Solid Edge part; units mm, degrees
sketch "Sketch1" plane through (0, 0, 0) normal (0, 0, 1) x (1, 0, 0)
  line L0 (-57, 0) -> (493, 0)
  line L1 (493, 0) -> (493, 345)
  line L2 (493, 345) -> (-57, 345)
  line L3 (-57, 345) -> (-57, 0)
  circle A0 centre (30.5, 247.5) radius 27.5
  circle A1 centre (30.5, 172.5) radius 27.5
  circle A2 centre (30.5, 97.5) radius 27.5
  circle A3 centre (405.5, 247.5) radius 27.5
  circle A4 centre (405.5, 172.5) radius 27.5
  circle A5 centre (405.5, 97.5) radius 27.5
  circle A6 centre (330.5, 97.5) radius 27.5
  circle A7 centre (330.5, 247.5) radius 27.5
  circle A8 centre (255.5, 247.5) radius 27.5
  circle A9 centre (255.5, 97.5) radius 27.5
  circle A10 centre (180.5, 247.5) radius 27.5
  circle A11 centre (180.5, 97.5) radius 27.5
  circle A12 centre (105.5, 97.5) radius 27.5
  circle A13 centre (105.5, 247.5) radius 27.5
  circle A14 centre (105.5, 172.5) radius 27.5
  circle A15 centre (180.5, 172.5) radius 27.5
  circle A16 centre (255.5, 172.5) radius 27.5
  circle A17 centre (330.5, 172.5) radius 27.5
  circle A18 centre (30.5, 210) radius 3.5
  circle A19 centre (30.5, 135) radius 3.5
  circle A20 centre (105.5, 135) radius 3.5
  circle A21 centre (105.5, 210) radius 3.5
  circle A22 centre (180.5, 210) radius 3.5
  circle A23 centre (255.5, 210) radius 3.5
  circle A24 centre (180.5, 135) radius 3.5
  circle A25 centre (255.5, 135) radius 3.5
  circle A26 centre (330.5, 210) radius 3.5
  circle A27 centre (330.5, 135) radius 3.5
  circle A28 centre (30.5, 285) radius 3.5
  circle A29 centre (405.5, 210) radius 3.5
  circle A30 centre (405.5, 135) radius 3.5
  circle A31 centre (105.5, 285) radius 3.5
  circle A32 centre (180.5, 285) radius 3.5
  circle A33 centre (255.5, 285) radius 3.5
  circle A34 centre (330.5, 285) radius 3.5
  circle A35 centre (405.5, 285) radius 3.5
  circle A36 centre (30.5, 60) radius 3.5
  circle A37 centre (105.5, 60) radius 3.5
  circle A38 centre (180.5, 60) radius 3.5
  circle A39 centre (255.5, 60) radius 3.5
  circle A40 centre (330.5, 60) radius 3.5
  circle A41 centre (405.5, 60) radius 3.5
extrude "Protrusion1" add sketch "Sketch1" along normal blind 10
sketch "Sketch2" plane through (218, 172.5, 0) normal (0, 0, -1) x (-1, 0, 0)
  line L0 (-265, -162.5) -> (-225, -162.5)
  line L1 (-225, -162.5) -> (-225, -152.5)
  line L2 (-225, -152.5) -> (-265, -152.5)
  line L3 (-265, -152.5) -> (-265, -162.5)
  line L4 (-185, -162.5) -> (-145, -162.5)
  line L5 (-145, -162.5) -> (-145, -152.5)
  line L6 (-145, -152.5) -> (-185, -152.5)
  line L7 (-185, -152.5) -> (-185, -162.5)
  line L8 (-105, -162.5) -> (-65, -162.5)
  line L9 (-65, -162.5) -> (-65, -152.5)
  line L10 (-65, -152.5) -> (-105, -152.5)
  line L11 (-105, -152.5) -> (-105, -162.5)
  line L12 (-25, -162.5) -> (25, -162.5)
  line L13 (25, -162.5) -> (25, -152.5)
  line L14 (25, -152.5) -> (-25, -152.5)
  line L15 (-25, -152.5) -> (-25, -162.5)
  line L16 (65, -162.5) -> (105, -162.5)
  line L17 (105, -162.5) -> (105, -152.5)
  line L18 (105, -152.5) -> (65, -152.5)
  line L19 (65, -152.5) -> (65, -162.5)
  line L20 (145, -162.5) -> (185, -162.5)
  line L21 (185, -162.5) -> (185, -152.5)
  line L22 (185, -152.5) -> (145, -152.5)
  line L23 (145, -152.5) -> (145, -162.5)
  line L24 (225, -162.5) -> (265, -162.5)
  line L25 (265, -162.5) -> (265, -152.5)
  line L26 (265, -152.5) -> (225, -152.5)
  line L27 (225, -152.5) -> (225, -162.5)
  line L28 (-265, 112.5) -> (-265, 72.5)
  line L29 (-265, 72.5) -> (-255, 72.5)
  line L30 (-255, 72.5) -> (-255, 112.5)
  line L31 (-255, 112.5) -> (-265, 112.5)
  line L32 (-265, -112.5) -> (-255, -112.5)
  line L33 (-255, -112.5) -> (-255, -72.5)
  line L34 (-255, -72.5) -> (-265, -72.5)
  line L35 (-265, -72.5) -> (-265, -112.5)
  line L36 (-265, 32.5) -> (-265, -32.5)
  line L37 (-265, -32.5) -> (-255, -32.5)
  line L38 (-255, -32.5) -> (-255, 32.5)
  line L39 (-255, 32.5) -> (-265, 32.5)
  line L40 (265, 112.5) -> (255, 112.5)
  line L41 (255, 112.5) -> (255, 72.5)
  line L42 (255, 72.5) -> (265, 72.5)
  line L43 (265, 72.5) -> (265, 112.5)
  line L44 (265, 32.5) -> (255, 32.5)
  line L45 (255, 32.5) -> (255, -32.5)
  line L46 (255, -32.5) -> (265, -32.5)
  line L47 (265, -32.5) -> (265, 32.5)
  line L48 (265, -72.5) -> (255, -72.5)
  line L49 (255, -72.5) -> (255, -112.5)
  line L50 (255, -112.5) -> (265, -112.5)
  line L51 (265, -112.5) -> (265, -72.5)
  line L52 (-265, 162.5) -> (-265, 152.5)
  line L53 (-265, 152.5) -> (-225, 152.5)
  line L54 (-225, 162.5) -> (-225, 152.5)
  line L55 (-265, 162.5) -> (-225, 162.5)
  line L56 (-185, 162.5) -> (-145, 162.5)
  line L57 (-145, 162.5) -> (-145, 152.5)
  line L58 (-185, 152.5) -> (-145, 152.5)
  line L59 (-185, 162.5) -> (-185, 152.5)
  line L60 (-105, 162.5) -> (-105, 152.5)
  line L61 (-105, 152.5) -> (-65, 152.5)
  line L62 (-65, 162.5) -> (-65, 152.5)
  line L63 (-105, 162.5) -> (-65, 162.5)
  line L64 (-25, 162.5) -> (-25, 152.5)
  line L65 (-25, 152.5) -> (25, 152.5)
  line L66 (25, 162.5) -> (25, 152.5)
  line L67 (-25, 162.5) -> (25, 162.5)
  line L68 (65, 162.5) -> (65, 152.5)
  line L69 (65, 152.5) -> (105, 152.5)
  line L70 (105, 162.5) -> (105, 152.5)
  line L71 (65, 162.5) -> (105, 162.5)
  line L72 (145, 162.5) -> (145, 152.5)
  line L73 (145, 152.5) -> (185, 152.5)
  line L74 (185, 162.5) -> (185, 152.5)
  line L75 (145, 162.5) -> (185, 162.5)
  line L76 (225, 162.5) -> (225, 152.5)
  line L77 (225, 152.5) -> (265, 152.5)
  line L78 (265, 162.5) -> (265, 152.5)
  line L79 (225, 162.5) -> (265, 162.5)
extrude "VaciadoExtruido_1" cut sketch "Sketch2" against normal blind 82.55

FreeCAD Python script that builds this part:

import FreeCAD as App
import Part
import Sketcher
from FreeCAD import Vector
Q = App.Units.Quantity

doc = App.newDocument("Part")
body = doc.addObject("PartDesign::Body", "Body")

sketch1 = body.newObject("Sketcher::SketchObject", "Sketch")
sketch1.AttachmentSupport = (doc.getObject("XY_Plane"), [""])
sketch1.MapMode = "FlatFace"
sketch1.addGeometry([
    Part.LineSegment(Vector(-57, 345, 0), Vector(-57, 0, 0)),
    Part.LineSegment(Vector(-57, 0, 0), Vector(493, 0, 0)),
    Part.LineSegment(Vector(493, 0, 0), Vector(493, 345, 0)),
    Part.LineSegment(Vector(493, 345, 0), Vector(-57, 345, 0)),
    Part.Circle(Vector(30.5, 60, 0), Vector(0, 0, 1), 3.5),
    Part.Circle(Vector(105.5, 60, 0), Vector(0, 0, 1), 3.5),
    Part.Circle(Vector(180.5, 60, 0), Vector(0, 0, 1), 3.5),
    Part.Circle(Vector(30.5, 97.5, 0), Vector(0, 0, 1), 27.5),
    Part.Circle(Vector(30.5, 135, 0), Vector(0, 0, 1), 3.5),
    Part.Circle(Vector(105.5, 97.5, 0), Vector(0, 0, 1), 27.5),
    Part.Circle(Vector(180.5, 97.5, 0), Vector(0, 0, 1), 27.5),
    Part.Circle(Vector(105.5, 135, 0), Vector(0, 0, 1), 3.5),
    Part.Circle(Vector(180.5, 135, 0), Vector(0, 0, 1), 3.5),
    Part.Circle(Vector(255.5, 60, 0), Vector(0, 0, 1), 3.5),
    Part.Circle(Vector(330.5, 60, 0), Vector(0, 0, 1), 3.5),
    Part.Circle(Vector(405.5, 60, 0), Vector(0, 0, 1), 3.5),
    Part.Circle(Vector(255.5, 97.5, 0), Vector(0, 0, 1), 27.5),
    Part.Circle(Vector(330.5, 97.5, 0), Vector(0, 0, 1), 27.5),
    Part.Circle(Vector(255.5, 135, 0), Vector(0, 0, 1), 3.5),
    Part.Circle(Vector(330.5, 135, 0), Vector(0, 0, 1), 3.5),
    Part.Circle(Vector(405.5, 97.5, 0), Vector(0, 0, 1), 27.5),
    Part.Circle(Vector(405.5, 135, 0), Vector(0, 0, 1), 3.5),
    Part.Circle(Vector(30.5, 172.5, 0), Vector(0, 0, 1), 27.5),
    Part.Circle(Vector(30.5, 210, 0), Vector(0, 0, 1), 3.5),
    Part.Circle(Vector(30.5, 247.5, 0), Vector(0, 0, 1), 27.5),
    Part.Circle(Vector(105.5, 172.5, 0), Vector(0, 0, 1), 27.5),
    Part.Circle(Vector(105.5, 210, 0), Vector(0, 0, 1), 3.5),
    Part.Circle(Vector(180.5, 172.5, 0), Vector(0, 0, 1), 27.5),
    Part.Circle(Vector(180.5, 210, 0), Vector(0, 0, 1), 3.5),
    Part.Circle(Vector(105.5, 247.5, 0), Vector(0, 0, 1), 27.5),
    Part.Circle(Vector(180.5, 247.5, 0), Vector(0, 0, 1), 27.5),
    Part.Circle(Vector(30.5, 285, 0), Vector(0, 0, 1), 3.5),
    Part.Circle(Vector(105.5, 285, 0), Vector(0, 0, 1), 3.5),
    Part.Circle(Vector(180.5, 285, 0), Vector(0, 0, 1), 3.5),
    Part.Circle(Vector(255.5, 172.5, 0), Vector(0, 0, 1), 27.5),
    Part.Circle(Vector(255.5, 210, 0), Vector(0, 0, 1), 3.5),
    Part.Circle(Vector(330.5, 172.5, 0), Vector(0, 0, 1), 27.5),
    Part.Circle(Vector(330.5, 210, 0), Vector(0, 0, 1), 3.5),
    Part.Circle(Vector(255.5, 247.5, 0), Vector(0, 0, 1), 27.5),
    Part.Circle(Vector(330.5, 247.5, 0), Vector(0, 0, 1), 27.5),
    Part.Circle(Vector(405.5, 172.5, 0), Vector(0, 0, 1), 27.5),
    Part.Circle(Vector(405.5, 210, 0), Vector(0, 0, 1), 3.5),
    Part.Circle(Vector(405.5, 247.5, 0), Vector(0, 0, 1), 27.5),
    Part.Circle(Vector(255.5, 285, 0), Vector(0, 0, 1), 3.5),
    Part.Circle(Vector(330.5, 285, 0), Vector(0, 0, 1), 3.5),
    Part.Circle(Vector(405.5, 285, 0), Vector(0, 0, 1), 3.5),
], False)
sketch1.addConstraint([
    Sketcher.Constraint("Coincident", 0, 2, 1, 1),
    Sketcher.Constraint("Coincident", 1, 2, 2, 1),
    Sketcher.Constraint("Coincident", 2, 2, 3, 1),
    Sketcher.Constraint("Coincident", 3, 2, 0, 1),
    Sketcher.Constraint("Vertical", 0),
    Sketcher.Constraint("Horizontal", 1),
    Sketcher.Constraint("Vertical", 2),
    Sketcher.Constraint("Horizontal", 3),
    Sketcher.Constraint("Equal", 4, 5),
    Sketcher.Constraint("Equal", 5, 6),
    Sketcher.Constraint("Equal", 6, 8),
    Sketcher.Constraint("Equal", 7, 9),
    Sketcher.Constraint("Equal", 9, 10),
    Sketcher.Constraint("Equal", 8, 11),
    Sketcher.Constraint("Equal", 11, 12),
    Sketcher.Constraint("Equal", 12, 13),
    Sketcher.Constraint("Equal", 13, 14),
    Sketcher.Constraint("Equal", 14, 15),
    Sketcher.Constraint("Equal", 10, 16),
    Sketcher.Constraint("Equal", 16, 17),
    Sketcher.Constraint("Equal", 15, 18),
    Sketcher.Constraint("Equal", 18, 19),
    Sketcher.Constraint("Equal", 17, 20),
    Sketcher.Constraint("Equal", 19, 21),
    Sketcher.Constraint("Equal", 20, 22),
    Sketcher.Constraint("Equal", 21, 23),
    Sketcher.Constraint("Equal", 22, 24),
    Sketcher.Constraint("Equal", 24, 25),
    Sketcher.Constraint("Equal", 23, 26),
    Sketcher.Constraint("Equal", 25, 27),
    Sketcher.Constraint("Equal", 26, 28),
    Sketcher.Constraint("Equal", 27, 29),
    Sketcher.Constraint("Equal", 29, 30),
    Sketcher.Constraint("Equal", 28, 31),
    Sketcher.Constraint("Equal", 31, 32),
    Sketcher.Constraint("Equal", 32, 33),
    Sketcher.Constraint("Equal", 30, 34),
    Sketcher.Constraint("Equal", 33, 35),
    Sketcher.Constraint("Equal", 34, 36),
    Sketcher.Constraint("Equal", 35, 37),
    Sketcher.Constraint("Equal", 36, 38),
    Sketcher.Constraint("Equal", 38, 39),
    Sketcher.Constraint("Equal", 39, 40),
    Sketcher.Constraint("Equal", 37, 41),
    Sketcher.Constraint("Equal", 40, 42),
    Sketcher.Constraint("Equal", 41, 43),
    Sketcher.Constraint("Equal", 43, 44),
    Sketcher.Constraint("Equal", 44, 45),
    Sketcher.Constraint("PointOnObject", 0, 2, -1),
    Sketcher.Constraint("Horizontal", 4, 3, 5, 3),
    Sketcher.Constraint("Horizontal", 5, 3, 6, 3),
    Sketcher.Constraint("Horizontal", 7, 3, 9, 3),
    Sketcher.Constraint("Horizontal", 9, 3, 10, 3),
    Sketcher.Constraint("Horizontal", 8, 3, 11, 3),
    Sketcher.Constraint("Horizontal", 11, 3, 12, 3),
    Sketcher.Constraint("Horizontal", 6, 3, 13, 3),
    Sketcher.Constraint("Horizontal", 13, 3, 14, 3),
    Sketcher.Constraint("Horizontal", 14, 3, 15, 3),
    Sketcher.Constraint("Horizontal", 10, 3, 16, 3),
    Sketcher.Constraint("Horizontal", 16, 3, 17, 3),
    Sketcher.Constraint("Horizontal", 12, 3, 18, 3),
    Sketcher.Constraint("Horizontal", 18, 3, 19, 3),
    Sketcher.Constraint("Horizontal", 17, 3, 20, 3),
    Sketcher.Constraint("Horizontal", 19, 3, 21, 3),
    Sketcher.Constraint("Horizontal", 22, 3, 25, 3),
    Sketcher.Constraint("Horizontal", 23, 3, 26, 3),
    Sketcher.Constraint("Horizontal", 25, 3, 27, 3),
    Sketcher.Constraint("Horizontal", 26, 3, 28, 3),
    Sketcher.Constraint("Horizontal", 24, 3, 29, 3),
    Sketcher.Constraint("Horizontal", 29, 3, 30, 3),
    Sketcher.Constraint("Horizontal", 31, 3, 32, 3),
    Sketcher.Constraint("Horizontal", 32, 3, 33, 3),
    Sketcher.Constraint("Horizontal", 27, 3, 34, 3),
    Sketcher.Constraint("Horizontal", 28, 3, 35, 3),
    Sketcher.Constraint("Horizontal", 34, 3, 36, 3),
    Sketcher.Constraint("Horizontal", 35, 3, 37, 3),
    Sketcher.Constraint("Horizontal", 30, 3, 38, 3),
    Sketcher.Constraint("Horizontal", 38, 3, 39, 3),
    Sketcher.Constraint("Horizontal", 36, 3, 40, 3),
    Sketcher.Constraint("Horizontal", 37, 3, 41, 3),
    Sketcher.Constraint("Horizontal", 39, 3, 42, 3),
    Sketcher.Constraint("Horizontal", 33, 3, 43, 3),
    Sketcher.Constraint("Horizontal", 43, 3, 44, 3),
    Sketcher.Constraint("Horizontal", 44, 3, 45, 3),
    Sketcher.Constraint("Vertical", 4, 3, 7, 3),
    Sketcher.Constraint("Vertical", 7, 3, 8, 3),
    Sketcher.Constraint("Vertical", 5, 3, 9, 3),
    Sketcher.Constraint("Vertical", 6, 3, 10, 3),
    Sketcher.Constraint("Vertical", 9, 3, 11, 3),
    Sketcher.Constraint("Vertical", 10, 3, 12, 3),
    Sketcher.Constraint("Vertical", 13, 3, 16, 3),
    Sketcher.Constraint("Vertical", 14, 3, 17, 3),
    Sketcher.Constraint("Vertical", 16, 3, 18, 3),
    Sketcher.Constraint("Vertical", 17, 3, 19, 3),
    Sketcher.Constraint("Vertical", 15, 3, 20, 3),
    Sketcher.Constraint("Vertical", 20, 3, 21, 3),
    Sketcher.Constraint("Vertical", 8, 3, 22, 3),
    Sketcher.Constraint("Vertical", 22, 3, 23, 3),
    Sketcher.Constraint("Vertical", 23, 3, 24, 3),
    Sketcher.Constraint("Vertical", 11, 3, 25, 3),
    Sketcher.Constraint("Vertical", 25, 3, 26, 3),
    Sketcher.Constraint("Vertical", 12, 3, 27, 3),
    Sketcher.Constraint("Vertical", 27, 3, 28, 3),
    Sketcher.Constraint("Vertical", 26, 3, 29, 3),
    Sketcher.Constraint("Vertical", 28, 3, 30, 3),
    Sketcher.Constraint("Vertical", 24, 3, 31, 3),
    Sketcher.Constraint("Vertical", 29, 3, 32, 3),
    Sketcher.Constraint("Vertical", 30, 3, 33, 3),
    Sketcher.Constraint("Vertical", 18, 3, 34, 3),
    Sketcher.Constraint("Vertical", 34, 3, 35, 3),
    Sketcher.Constraint("Vertical", 19, 3, 36, 3),
    Sketcher.Constraint("Vertical", 36, 3, 37, 3),
    Sketcher.Constraint("Vertical", 35, 3, 38, 3),
    Sketcher.Constraint("Vertical", 37, 3, 39, 3),
    Sketcher.Constraint("Vertical", 21, 3, 40, 3),
    Sketcher.Constraint("Vertical", 40, 3, 41, 3),
    Sketcher.Constraint("Vertical", 41, 3, 42, 3),
    Sketcher.Constraint("Vertical", 38, 3, 43, 3),
    Sketcher.Constraint("Vertical", 39, 3, 44, 3),
    Sketcher.Constraint("Vertical", 42, 3, 45, 3),
    Sketcher.Constraint("Diameter", 4, Q("7 mm")),
    Sketcher.Constraint("Diameter", 7, Q("55 mm")),
    Sketcher.Constraint("DistanceX", 1, 1, 1, 2, Q("550 mm")),
    Sketcher.Constraint("DistanceY", 0, 2, 0, 1, Q("345 mm")),
    Sketcher.Constraint("DistanceY", -1, 1, 4, 3, Q("60 mm")),
    Sketcher.Constraint("DistanceY", -1, 1, 8, 3, Q("135 mm")),
    Sketcher.Constraint("DistanceY", -1, 1, 23, 3, Q("210 mm")),
    Sketcher.Constraint("DistanceY", -1, 1, 31, 3, Q("285 mm")),
    Sketcher.Constraint("DistanceX", 0, 2, -1, 1, Q("57 mm")),
    Sketcher.Constraint("DistanceX", 4, 3, 5, 3, Q("75 mm")),
    Sketcher.Constraint("DistanceX", 5, 3, 6, 3, Q("75 mm")),
    Sketcher.Constraint("DistanceX", 6, 3, 13, 3, Q("75 mm")),
    Sketcher.Constraint("DistanceX", 13, 3, 14, 3, Q("75 mm")),
    Sketcher.Constraint("DistanceX", 14, 3, 15, 3, Q("75 mm")),
    Sketcher.Constraint("DistanceY", 7, 3, 22, 3, Q("75 mm")),
    Sketcher.Constraint("DistanceY", 22, 3, 24, 3, Q("75 mm")),
    Sketcher.Constraint("DistanceX", -1, 1, 4, 3, Q("30.5 mm")),
    Sketcher.Constraint("DistanceY", -1, 1, 7, 3, Q("97.5 mm")),
])
pad1 = body.newObject("PartDesign::Pad", "Pad")
pad1.Profile = sketch1
pad1.Length = 10

sketch2 = body.newObject("Sketcher::SketchObject", "Sketch001")
sketch2.AttachmentSupport = (doc.getObject("XY_Plane"), [""])
sketch2.MapMode = "FlatFace"
sketch2.addGeometry([
    Part.LineSegment(Vector(483, 20, 0), Vector(483, 10, 0)),
    Part.LineSegment(Vector(483, 10, 0), Vector(443, 10, 0)),
    Part.LineSegment(Vector(443, 10, 0), Vector(443, 20, 0)),
    Part.LineSegment(Vector(443, 20, 0), Vector(483, 20, 0)),
    Part.LineSegment(Vector(403, 20, 0), Vector(403, 10, 0)),
    Part.LineSegment(Vector(403, 10, 0), Vector(363, 10, 0)),
    Part.LineSegment(Vector(363, 10, 0), Vector(363, 20, 0)),
    Part.LineSegment(Vector(363, 20, 0), Vector(403, 20, 0)),
    Part.LineSegment(Vector(323, 20, 0), Vector(323, 10, 0)),
    Part.LineSegment(Vector(323, 10, 0), Vector(283, 10, 0)),
    Part.LineSegment(Vector(283, 10, 0), Vector(283, 20, 0)),
    Part.LineSegment(Vector(283, 20, 0), Vector(323, 20, 0)),
    Part.LineSegment(Vector(243, 20, 0), Vector(243, 10, 0)),
    Part.LineSegment(Vector(243, 10, 0), Vector(193, 10, 0)),
    Part.LineSegment(Vector(193, 10, 0), Vector(193, 20, 0)),
    Part.LineSegment(Vector(193, 20, 0), Vector(243, 20, 0)),
    Part.LineSegment(Vector(153, 20, 0), Vector(153, 10, 0)),
    Part.LineSegment(Vector(153, 10, 0), Vector(113, 10, 0)),
    Part.LineSegment(Vector(113, 10, 0), Vector(113, 20, 0)),
    Part.LineSegment(Vector(113, 20, 0), Vector(153, 20, 0)),
    Part.LineSegment(Vector(73, 20, 0), Vector(73, 10, 0)),
    Part.LineSegment(Vector(73, 10, 0), Vector(33, 10, 0)),
    Part.LineSegment(Vector(33, 10, 0), Vector(33, 20, 0)),
    Part.LineSegment(Vector(33, 20, 0), Vector(73, 20, 0)),
    Part.LineSegment(Vector(-7, 20, 0), Vector(-7, 10, 0)),
    Part.LineSegment(Vector(-7, 10, 0), Vector(-47, 10, 0)),
    Part.LineSegment(Vector(-47, 10, 0), Vector(-47, 20, 0)),
    Part.LineSegment(Vector(-47, 20, 0), Vector(-7, 20, 0)),
    Part.LineSegment(Vector(473, 285, 0), Vector(483, 285, 0)),
    Part.LineSegment(Vector(483, 285, 0), Vector(483, 245, 0)),
    Part.LineSegment(Vector(483, 245, 0), Vector(473, 245, 0)),
    Part.LineSegment(Vector(473, 245, 0), Vector(473, 285, 0)),
    Part.LineSegment(Vector(483, 100, 0), Vector(483, 60, 0)),
    Part.LineSegment(Vector(483, 60, 0), Vector(473, 60, 0)),
    Part.LineSegment(Vector(473, 60, 0), Vector(473, 100, 0)),
    Part.LineSegment(Vector(473, 100, 0), Vector(483, 100, 0)),
    Part.LineSegment(Vector(473, 205, 0), Vector(483, 205, 0)),
    Part.LineSegment(Vector(483, 205, 0), Vector(483, 140, 0)),
    Part.LineSegment(Vector(483, 140, 0), Vector(473, 140, 0)),
    Part.LineSegment(Vector(473, 140, 0), Vector(473, 205, 0)),
    Part.LineSegment(Vector(-47, 245, 0), Vector(-47, 285, 0)),
    Part.LineSegment(Vector(-47, 285, 0), Vector(-37, 285, 0)),
    Part.LineSegment(Vector(-37, 285, 0), Vector(-37, 245, 0)),
    Part.LineSegment(Vector(-37, 245, 0), Vector(-47, 245, 0)),
    Part.LineSegment(Vector(-47, 140, 0), Vector(-47, 205, 0)),
    Part.LineSegment(Vector(-47, 205, 0), Vector(-37, 205, 0)),
    Part.LineSegment(Vector(-37, 205, 0), Vector(-37, 140, 0)),
    Part.LineSegment(Vector(-37, 140, 0), Vector(-47, 140, 0)),
    Part.LineSegment(Vector(-47, 60, 0), Vector(-47, 100, 0)),
    Part.LineSegment(Vector(-47, 100, 0), Vector(-37, 100, 0)),
    Part.LineSegment(Vector(-37, 100, 0), Vector(-37, 60, 0)),
    Part.LineSegment(Vector(-37, 60, 0), Vector(-47, 60, 0)),
    Part.LineSegment(Vector(443, 335, 0), Vector(483, 335, 0)),
    Part.LineSegment(Vector(483, 335, 0), Vector(483, 325, 0)),
    Part.LineSegment(Vector(483, 325, 0), Vector(443, 325, 0)),
    Part.LineSegment(Vector(443, 325, 0), Vector(443, 335, 0)),
    Part.LineSegment(Vector(363, 335, 0), Vector(403, 335, 0)),
    Part.LineSegment(Vector(403, 335, 0), Vector(403, 325, 0)),
    Part.LineSegment(Vector(403, 325, 0), Vector(363, 325, 0)),
    Part.LineSegment(Vector(363, 325, 0), Vector(363, 335, 0)),
    Part.LineSegment(Vector(283, 335, 0), Vector(323, 335, 0)),
    Part.LineSegment(Vector(323, 335, 0), Vector(323, 325, 0)),
    Part.LineSegment(Vector(323, 325, 0), Vector(283, 325, 0)),
    Part.LineSegment(Vector(283, 325, 0), Vector(283, 335, 0)),
    Part.LineSegment(Vector(193, 335, 0), Vector(243, 335, 0)),
    Part.LineSegment(Vector(243, 335, 0), Vector(243, 325, 0)),
    Part.LineSegment(Vector(243, 325, 0), Vector(193, 325, 0)),
    Part.LineSegment(Vector(193, 325, 0), Vector(193, 335, 0)),
    Part.LineSegment(Vector(113, 335, 0), Vector(153, 335, 0)),
    Part.LineSegment(Vector(153, 335, 0), Vector(153, 325, 0)),
    Part.LineSegment(Vector(153, 325, 0), Vector(113, 325, 0)),
    Part.LineSegment(Vector(113, 325, 0), Vector(113, 335, 0)),
    Part.LineSegment(Vector(33, 335, 0), Vector(73, 335, 0)),
    Part.LineSegment(Vector(73, 335, 0), Vector(73, 325, 0)),
    Part.LineSegment(Vector(73, 325, 0), Vector(33, 325, 0)),
    Part.LineSegment(Vector(33, 325, 0), Vector(33, 335, 0)),
    Part.LineSegment(Vector(-47, 335, 0), Vector(-7, 335, 0)),
    Part.LineSegment(Vector(-7, 335, 0), Vector(-7, 325, 0)),
    Part.LineSegment(Vector(-7, 325, 0), Vector(-47, 325, 0)),
    Part.LineSegment(Vector(-47, 325, 0), Vector(-47, 335, 0)),
], False)
sketch2.addConstraint([
    Sketcher.Constraint("Coincident", 0, 2, 1, 1),
    Sketcher.Constraint("Coincident", 1, 2, 2, 1),
    Sketcher.Constraint("Coincident", 2, 2, 3, 1),
    Sketcher.Constraint("Coincident", 3, 2, 0, 1),
    Sketcher.Constraint("Coincident", 4, 2, 5, 1),
    Sketcher.Constraint("Coincident", 5, 2, 6, 1),
    Sketcher.Constraint("Coincident", 6, 2, 7, 1),
    Sketcher.Constraint("Coincident", 7, 2, 4, 1),
    Sketcher.Constraint("Coincident", 8, 2, 9, 1),
    Sketcher.Constraint("Coincident", 9, 2, 10, 1),
    Sketcher.Constraint("Coincident", 10, 2, 11, 1),
    Sketcher.Constraint("Coincident", 11, 2, 8, 1),
    Sketcher.Constraint("Coincident", 12, 2, 13, 1),
    Sketcher.Constraint("Coincident", 13, 2, 14, 1),
    Sketcher.Constraint("Coincident", 14, 2, 15, 1),
    Sketcher.Constraint("Coincident", 15, 2, 12, 1),
    Sketcher.Constraint("Coincident", 16, 2, 17, 1),
    Sketcher.Constraint("Coincident", 17, 2, 18, 1),
    Sketcher.Constraint("Coincident", 18, 2, 19, 1),
    Sketcher.Constraint("Coincident", 19, 2, 16, 1),
    Sketcher.Constraint("Coincident", 20, 2, 21, 1),
    Sketcher.Constraint("Coincident", 21, 2, 22, 1),
    Sketcher.Constraint("Coincident", 22, 2, 23, 1),
    Sketcher.Constraint("Coincident", 23, 2, 20, 1),
    Sketcher.Constraint("Coincident", 24, 2, 25, 1),
    Sketcher.Constraint("Coincident", 25, 2, 26, 1),
    Sketcher.Constraint("Coincident", 26, 2, 27, 1),
    Sketcher.Constraint("Coincident", 27, 2, 24, 1),
    Sketcher.Constraint("Coincident", 28, 2, 29, 1),
    Sketcher.Constraint("Coincident", 29, 2, 30, 1),
    Sketcher.Constraint("Coincident", 30, 2, 31, 1),
    Sketcher.Constraint("Coincident", 31, 2, 28, 1),
    Sketcher.Constraint("Coincident", 32, 2, 33, 1),
    Sketcher.Constraint("Coincident", 33, 2, 34, 1),
    Sketcher.Constraint("Coincident", 34, 2, 35, 1),
    Sketcher.Constraint("Coincident", 35, 2, 32, 1),
    Sketcher.Constraint("Coincident", 36, 2, 37, 1),
    Sketcher.Constraint("Coincident", 37, 2, 38, 1),
    Sketcher.Constraint("Coincident", 38, 2, 39, 1),
    Sketcher.Constraint("Coincident", 39, 2, 36, 1),
    Sketcher.Constraint("Coincident", 40, 2, 41, 1),
    Sketcher.Constraint("Coincident", 41, 2, 42, 1),
    Sketcher.Constraint("Coincident", 42, 2, 43, 1),
    Sketcher.Constraint("Coincident", 43, 2, 40, 1),
    Sketcher.Constraint("Coincident", 44, 2, 45, 1),
    Sketcher.Constraint("Coincident", 45, 2, 46, 1),
    Sketcher.Constraint("Coincident", 46, 2, 47, 1),
    Sketcher.Constraint("Coincident", 47, 2, 44, 1),
    Sketcher.Constraint("Coincident", 48, 2, 49, 1),
    Sketcher.Constraint("Coincident", 49, 2, 50, 1),
    Sketcher.Constraint("Coincident", 50, 2, 51, 1),
    Sketcher.Constraint("Coincident", 51, 2, 48, 1),
    Sketcher.Constraint("Coincident", 52, 2, 53, 1),
    Sketcher.Constraint("Coincident", 53, 2, 54, 1),
    Sketcher.Constraint("Coincident", 54, 2, 55, 1),
    Sketcher.Constraint("Coincident", 55, 2, 52, 1),
    Sketcher.Constraint("Coincident", 56, 2, 57, 1),
    Sketcher.Constraint("Coincident", 57, 2, 58, 1),
    Sketcher.Constraint("Coincident", 58, 2, 59, 1),
    Sketcher.Constraint("Coincident", 59, 2, 56, 1),
    Sketcher.Constraint("Coincident", 60, 2, 61, 1),
    Sketcher.Constraint("Coincident", 61, 2, 62, 1),
    Sketcher.Constraint("Coincident", 62, 2, 63, 1),
    Sketcher.Constraint("Coincident", 63, 2, 60, 1),
    Sketcher.Constraint("Coincident", 64, 2, 65, 1),
    Sketcher.Constraint("Coincident", 65, 2, 66, 1),
    Sketcher.Constraint("Coincident", 66, 2, 67, 1),
    Sketcher.Constraint("Coincident", 67, 2, 64, 1),
    Sketcher.Constraint("Coincident", 68, 2, 69, 1),
    Sketcher.Constraint("Coincident", 69, 2, 70, 1),
    Sketcher.Constraint("Coincident", 70, 2, 71, 1),
    Sketcher.Constraint("Coincident", 71, 2, 68, 1),
    Sketcher.Constraint("Coincident", 72, 2, 73, 1),
    Sketcher.Constraint("Coincident", 73, 2, 74, 1),
    Sketcher.Constraint("Coincident", 74, 2, 75, 1),
    Sketcher.Constraint("Coincident", 75, 2, 72, 1),
    Sketcher.Constraint("Coincident", 76, 2, 77, 1),
    Sketcher.Constraint("Coincident", 77, 2, 78, 1),
    Sketcher.Constraint("Coincident", 78, 2, 79, 1),
    Sketcher.Constraint("Coincident", 79, 2, 76, 1),
    Sketcher.Constraint("Vertical", 0),
    Sketcher.Constraint("Horizontal", 1),
    Sketcher.Constraint("Vertical", 2),
    Sketcher.Constraint("Horizontal", 3),
    Sketcher.Constraint("Vertical", 4),
    Sketcher.Constraint("Horizontal", 5),
    Sketcher.Constraint("Vertical", 6),
    Sketcher.Constraint("Horizontal", 7),
    Sketcher.Constraint("Vertical", 8),
    Sketcher.Constraint("Horizontal", 9),
    Sketcher.Constraint("Vertical", 10),
    Sketcher.Constraint("Horizontal", 11),
    Sketcher.Constraint("Vertical", 12),
    Sketcher.Constraint("Horizontal", 13),
    Sketcher.Constraint("Vertical", 14),
    Sketcher.Constraint("Horizontal", 15),
    Sketcher.Constraint("Vertical", 16),
    Sketcher.Constraint("Horizontal", 17),
    Sketcher.Constraint("Vertical", 18),
    Sketcher.Constraint("Horizontal", 19),
    Sketcher.Constraint("Vertical", 20),
    Sketcher.Constraint("Horizontal", 21),
    Sketcher.Constraint("Vertical", 22),
    Sketcher.Constraint("Horizontal", 23),
    Sketcher.Constraint("Vertical", 24),
    Sketcher.Constraint("Horizontal", 25),
    Sketcher.Constraint("Vertical", 26),
    Sketcher.Constraint("Horizontal", 27),
    Sketcher.Constraint("Horizontal", 28),
    Sketcher.Constraint("Vertical", 29),
    Sketcher.Constraint("Horizontal", 30),
    Sketcher.Constraint("Vertical", 31),
    Sketcher.Constraint("Vertical", 32),
    Sketcher.Constraint("Horizontal", 33),
    Sketcher.Constraint("Vertical", 34),
    Sketcher.Constraint("Horizontal", 35),
    Sketcher.Constraint("Horizontal", 36),
    Sketcher.Constraint("Vertical", 37),
    Sketcher.Constraint("Horizontal", 38),
    Sketcher.Constraint("Vertical", 39),
    Sketcher.Constraint("Vertical", 40),
    Sketcher.Constraint("Horizontal", 41),
    Sketcher.Constraint("Vertical", 42),
    Sketcher.Constraint("Horizontal", 43),
    Sketcher.Constraint("Vertical", 44),
    Sketcher.Constraint("Horizontal", 45),
    Sketcher.Constraint("Vertical", 46),
    Sketcher.Constraint("Horizontal", 47),
    Sketcher.Constraint("Vertical", 48),
    Sketcher.Constraint("Horizontal", 49),
    Sketcher.Constraint("Vertical", 50),
    Sketcher.Constraint("Horizontal", 51),
    Sketcher.Constraint("Horizontal", 52),
    Sketcher.Constraint("Vertical", 53),
    Sketcher.Constraint("Horizontal", 54),
    Sketcher.Constraint("Vertical", 55),
    Sketcher.Constraint("Horizontal", 56),
    Sketcher.Constraint("Vertical", 57),
    Sketcher.Constraint("Horizontal", 58),
    Sketcher.Constraint("Vertical", 59),
    Sketcher.Constraint("Horizontal", 60),
    Sketcher.Constraint("Vertical", 61),
    Sketcher.Constraint("Horizontal", 62),
    Sketcher.Constraint("Vertical", 63),
    Sketcher.Constraint("Horizontal", 64),
    Sketcher.Constraint("Vertical", 65),
    Sketcher.Constraint("Horizontal", 66),
    Sketcher.Constraint("Vertical", 67),
    Sketcher.Constraint("Horizontal", 68),
    Sketcher.Constraint("Vertical", 69),
    Sketcher.Constraint("Horizontal", 70),
    Sketcher.Constraint("Vertical", 71),
    Sketcher.Constraint("Horizontal", 72),
    Sketcher.Constraint("Vertical", 73),
    Sketcher.Constraint("Horizontal", 74),
    Sketcher.Constraint("Vertical", 75),
    Sketcher.Constraint("Horizontal", 76),
    Sketcher.Constraint("Vertical", 77),
    Sketcher.Constraint("Horizontal", 78),
    Sketcher.Constraint("Vertical", 79),
    Sketcher.Constraint("Horizontal", 1, 2, 4, 2),
    Sketcher.Constraint("Horizontal", 3, 2, 6, 2),
    Sketcher.Constraint("Horizontal", 5, 2, 8, 2),
    Sketcher.Constraint("Horizontal", 7, 2, 10, 2),
    Sketcher.Constraint("Horizontal", 9, 2, 12, 2),
    Sketcher.Constraint("Horizontal", 11, 2, 14, 2),
    Sketcher.Constraint("Horizontal", 13, 2, 16, 2),
    Sketcher.Constraint("Horizontal", 15, 2, 18, 2),
    Sketcher.Constraint("Horizontal", 17, 2, 20, 2),
    Sketcher.Constraint("Horizontal", 19, 2, 22, 2),
    Sketcher.Constraint("Horizontal", 21, 2, 24, 2),
    Sketcher.Constraint("Horizontal", 23, 2, 26, 2),
    Sketcher.Constraint("Horizontal", 31, 2, 40, 2),
    Sketcher.Constraint("Horizontal", 30, 2, 42, 2),
    Sketcher.Constraint("Horizontal", 39, 2, 44, 2),
    Sketcher.Constraint("Horizontal", 38, 2, 46, 2),
    Sketcher.Constraint("Horizontal", 35, 2, 48, 2),
    Sketcher.Constraint("Horizontal", 33, 2, 50, 2),
    Sketcher.Constraint("Horizontal", 55, 2, 56, 2),
    Sketcher.Constraint("Horizontal", 54, 2, 57, 2),
    Sketcher.Constraint("Horizontal", 59, 2, 60, 2),
    Sketcher.Constraint("Horizontal", 58, 2, 61, 2),
    Sketcher.Constraint("Horizontal", 63, 2, 64, 2),
    Sketcher.Constraint("Horizontal", 62, 2, 65, 2),
    Sketcher.Constraint("Horizontal", 67, 2, 68, 2),
    Sketcher.Constraint("Horizontal", 66, 2, 69, 2),
    Sketcher.Constraint("Horizontal", 71, 2, 72, 2),
    Sketcher.Constraint("Horizontal", 70, 2, 73, 2),
    Sketcher.Constraint("Horizontal", 75, 2, 76, 2),
    Sketcher.Constraint("Horizontal", 74, 2, 77, 2),
    Sketcher.Constraint("Vertical", 3, 2, 28, 2),
    Sketcher.Constraint("Vertical", 29, 2, 32, 2),
    Sketcher.Constraint("Vertical", 31, 2, 33, 2),
    Sketcher.Constraint("Vertical", 35, 2, 36, 2),
    Sketcher.Constraint("Vertical", 34, 2, 38, 2),
    Sketcher.Constraint("Vertical", 26, 2, 40, 2),
    Sketcher.Constraint("Vertical", 43, 2, 44, 2),
    Sketcher.Constraint("Vertical", 42, 2, 45, 2),
    Sketcher.Constraint("Vertical", 47, 2, 48, 2),
    Sketcher.Constraint("Vertical", 46, 2, 49, 2),
    Sketcher.Constraint("Vertical", 37, 2, 52, 2),
    Sketcher.Constraint("Vertical", 2, 2, 54, 2),
    Sketcher.Constraint("Vertical", 7, 2, 56, 2),
    Sketcher.Constraint("Vertical", 6, 2, 58, 2),
    Sketcher.Constraint("Vertical", 11, 2, 60, 2),
    Sketcher.Constraint("Vertical", 10, 2, 62, 2),
    Sketcher.Constraint("Vertical", 15, 2, 64, 2),
    Sketcher.Constraint("Vertical", 14, 2, 66, 2),
    Sketcher.Constraint("Vertical", 19, 2, 68, 2),
    Sketcher.Constraint("Vertical", 18, 2, 70, 2),
    Sketcher.Constraint("Vertical", 23, 2, 72, 2),
    Sketcher.Constraint("Vertical", 22, 2, 74, 2),
    Sketcher.Constraint("Vertical", 27, 2, 76, 2),
    Sketcher.Constraint("Vertical", 51, 2, 78, 2),
    Sketcher.Constraint("Equal", 3, 5),
    Sketcher.Constraint("Equal", 7, 9),
    Sketcher.Constraint("Equal", 11, 17),
    Sketcher.Constraint("Equal", 19, 21),
    Sketcher.Constraint("Equal", 23, 25),
    Sketcher.Constraint("Equal", 38, 41),
    Sketcher.Constraint("Equal", 51, 0),
    Sketcher.Constraint("Equal", 78, 29),
    Sketcher.Constraint("Equal", 31, 32),
    Sketcher.Constraint("Equal", 26, 53),
    Sketcher.Constraint("DistanceX", 1, 2, 1, 1, Q("40 mm")),
    Sketcher.Constraint("DistanceX", 13, 2, 13, 1, Q("50 mm")),
    Sketcher.Constraint("DistanceX", 28, 1, 28, 2, Q("10 mm")),
    Sketcher.Constraint("DistanceY", 37, 2, 37, 1, Q("65 mm")),
    Sketcher.Constraint("DistanceX", -1, 1, 0, 2, Q("483 mm")),
    Sketcher.Constraint("DistanceY", -1, 1, 0, 2, Q("10 mm")),
    Sketcher.Constraint("DistanceX", -1, 1, 4, 2, Q("403 mm")),
    Sketcher.Constraint("DistanceX", -1, 1, 8, 2, Q("323 mm")),
    Sketcher.Constraint("DistanceX", -1, 1, 12, 2, Q("243 mm")),
    Sketcher.Constraint("DistanceX", -1, 1, 16, 2, Q("153 mm")),
    Sketcher.Constraint("DistanceX", -1, 1, 20, 2, Q("73 mm")),
    Sketcher.Constraint("DistanceX", 24, 2, -1, 1, Q("7 mm")),
    Sketcher.Constraint("DistanceY", -1, 1, 28, 2, Q("285 mm")),
    Sketcher.Constraint("DistanceY", -1, 1, 32, 2, Q("60 mm")),
    Sketcher.Constraint("DistanceY", -1, 1, 36, 2, Q("205 mm")),
    Sketcher.Constraint("DistanceY", -1, 1, 52, 2, Q("335 mm")),
])
pocket1 = body.newObject("PartDesign::Pocket", "Pocket")
pocket1.Profile = sketch2
pocket1.Length = 82.55
pocket1.Reversed = True

doc.recompute()
